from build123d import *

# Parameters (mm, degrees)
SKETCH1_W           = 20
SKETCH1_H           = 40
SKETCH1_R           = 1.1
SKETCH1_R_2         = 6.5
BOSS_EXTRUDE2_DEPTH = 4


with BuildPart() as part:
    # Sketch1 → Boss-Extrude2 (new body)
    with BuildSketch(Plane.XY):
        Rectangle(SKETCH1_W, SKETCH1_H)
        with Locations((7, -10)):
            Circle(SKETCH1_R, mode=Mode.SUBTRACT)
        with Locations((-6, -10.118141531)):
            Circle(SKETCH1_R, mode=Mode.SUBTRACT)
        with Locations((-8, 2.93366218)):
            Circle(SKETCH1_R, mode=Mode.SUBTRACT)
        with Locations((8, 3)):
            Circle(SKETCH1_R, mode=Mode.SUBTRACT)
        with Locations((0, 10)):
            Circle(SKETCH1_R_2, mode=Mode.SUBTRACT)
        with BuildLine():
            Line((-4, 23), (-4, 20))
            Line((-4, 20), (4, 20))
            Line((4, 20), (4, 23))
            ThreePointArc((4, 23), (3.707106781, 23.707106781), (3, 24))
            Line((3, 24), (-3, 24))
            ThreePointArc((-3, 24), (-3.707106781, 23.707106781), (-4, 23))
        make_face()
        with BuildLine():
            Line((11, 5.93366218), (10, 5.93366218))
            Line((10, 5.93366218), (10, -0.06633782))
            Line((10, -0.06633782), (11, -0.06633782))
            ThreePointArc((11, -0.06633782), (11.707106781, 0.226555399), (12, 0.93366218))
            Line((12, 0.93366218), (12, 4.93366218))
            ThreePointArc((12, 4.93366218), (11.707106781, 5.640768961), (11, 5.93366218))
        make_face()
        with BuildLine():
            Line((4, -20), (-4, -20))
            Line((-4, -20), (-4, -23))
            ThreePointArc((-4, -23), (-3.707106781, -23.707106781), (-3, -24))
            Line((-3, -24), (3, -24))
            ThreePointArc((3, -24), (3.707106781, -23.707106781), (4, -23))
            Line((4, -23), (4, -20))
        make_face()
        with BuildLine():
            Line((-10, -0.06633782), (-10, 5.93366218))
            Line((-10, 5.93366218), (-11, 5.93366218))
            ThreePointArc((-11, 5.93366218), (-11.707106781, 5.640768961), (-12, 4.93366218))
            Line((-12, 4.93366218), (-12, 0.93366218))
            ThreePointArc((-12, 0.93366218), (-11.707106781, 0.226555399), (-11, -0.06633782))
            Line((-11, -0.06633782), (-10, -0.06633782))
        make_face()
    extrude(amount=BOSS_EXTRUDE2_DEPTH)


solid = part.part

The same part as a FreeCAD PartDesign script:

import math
import FreeCAD as App
import Part
import Sketcher
from FreeCAD import Vector
Q = App.Units.Quantity

doc = App.newDocument("Part")
body = doc.addObject("PartDesign::Body", "Body")

sketch1 = doc.addObject("Sketcher::SketchObject", "Sketch")
body.addObject(sketch1)
sketch1.AttachmentSupport = (doc.XY_Plane, [""])
sketch1.MapMode = "FlatFace"
sketch1.addGeometry([
    Part.LineSegment(Vector(-10, -0.066338, 0), Vector(-10, -20, 0)),
    Part.LineSegment(Vector(-10, -20, 0), Vector(-4, -20, 0)),
    Part.LineSegment(Vector(-4, -20, 0), Vector(-4, -23, 0)),
    Part.ArcOfCircle(Part.Circle(Vector(-3, -23, 0), Vector(0, 0, 1), 1), math.radians(-180), math.radians(-90)),
    Part.LineSegment(Vector(-3, -24, 0), Vector(3, -24, 0)),
    Part.ArcOfCircle(Part.Circle(Vector(3, -23, 0), Vector(0, 0, 1), 1), math.radians(-90), math.radians(0)),
    Part.LineSegment(Vector(4, -23, 0), Vector(4, -20, 0)),
    Part.LineSegment(Vector(4, -20, 0), Vector(10, -20, 0)),
    Part.LineSegment(Vector(10, -20, 0), Vector(10, -0.066338, 0)),
    Part.LineSegment(Vector(10, -0.066338, 0), Vector(11, -0.066338, 0)),
    Part.ArcOfCircle(Part.Circle(Vector(11, 0.933662, 0), Vector(0, 0, 1), 1), math.radians(-90), math.radians(0)),
    Part.LineSegment(Vector(12, 0.933662, 0), Vector(12, 4.933662, 0)),
    Part.ArcOfCircle(Part.Circle(Vector(11, 4.933662, 0), Vector(0, 0, 1), 1), math.radians(0), math.radians(90)),
    Part.LineSegment(Vector(11, 5.933662, 0), Vector(10, 5.933662, 0)),
    Part.LineSegment(Vector(10, 5.933662, 0), Vector(10, 20, 0)),
    Part.LineSegment(Vector(10, 20, 0), Vector(4, 20, 0)),
    Part.LineSegment(Vector(4, 20, 0), Vector(4, 23, 0)),
    Part.ArcOfCircle(Part.Circle(Vector(3, 23, 0), Vector(0, 0, 1), 1), math.radians(0), math.radians(90)),
    Part.LineSegment(Vector(3, 24, 0), Vector(-3, 24, 0)),
    Part.ArcOfCircle(Part.Circle(Vector(-3, 23, 0), Vector(0, 0, 1), 1), math.radians(90), math.radians(180)),
    Part.LineSegment(Vector(-4, 23, 0), Vector(-4, 20, 0)),
    Part.LineSegment(Vector(-4, 20, 0), Vector(-10, 20, 0)),
    Part.LineSegment(Vector(-10, 20, 0), Vector(-10, 5.933662, 0)),
    Part.LineSegment(Vector(-10, 5.933662, 0), Vector(-11, 5.933662, 0)),
    Part.ArcOfCircle(Part.Circle(Vector(-11, 4.933662, 0), Vector(0, 0, 1), 1), math.radians(90), math.radians(180)),
    Part.LineSegment(Vector(-12, 4.933662, 0), Vector(-12, 0.933662, 0)),
    Part.ArcOfCircle(Part.Circle(Vector(-11, 0.933662, 0), Vector(0, 0, 1), 1), math.radians(-180), math.radians(-90)),
    Part.LineSegment(Vector(-11, -0.066338, 0), Vector(-10, -0.066338, 0)),
    Part.Circle(Vector(-6, -10.118142, 0), Vector(0, 0, 1), 1.1),
    Part.Circle(Vector(7, -10, 0), Vector(0, 0, 1), 1.1),
    Part.Circle(Vector(-8, 2.933662, 0), Vector(0, 0, 1), 1.1),
    Part.Circle(Vector(0, 10, 0), Vector(0, 0, 1), 6.5),
    Part.Circle(Vector(8, 3, 0), Vector(0, 0, 1), 1.1),
], False)
sketch1.addConstraint([
    Sketcher.Constraint("Coincident", 0, 2, 1, 1),
    Sketcher.Constraint("Coincident", 1, 2, 2, 1),
    Sketcher.Constraint("Tangent", 2, 2, 3, 1),
    Sketcher.Constraint("Tangent", 3, 2, 4, 1),
    Sketcher.Constraint("Tangent", 4, 2, 5, 1),
    Sketcher.Constraint("Tangent", 5, 2, 6, 1),
    Sketcher.Constraint("Coincident", 6, 2, 7, 1),
    Sketcher.Constraint("Coincident", 7, 2, 8, 1),
    Sketcher.Constraint("Coincident", 8, 2, 9, 1),
    Sketcher.Constraint("Tangent", 9, 2, 10, 1),
    Sketcher.Constraint("Tangent", 10, 2, 11, 1),
    Sketcher.Constraint("Tangent", 11, 2, 12, 1),
    Sketcher.Constraint("Tangent", 12, 2, 13, 1),
    Sketcher.Constraint("Coincident", 13, 2, 14, 1),
    Sketcher.Constraint("Coincident", 14, 2, 15, 1),
    Sketcher.Constraint("Coincident", 15, 2, 16, 1),
    Sketcher.Constraint("Tangent", 16, 2, 17, 1),
    Sketcher.Constraint("Tangent", 17, 2, 18, 1),
    Sketcher.Constraint("Tangent", 18, 2, 19, 1),
    Sketcher.Constraint("Tangent", 19, 2, 20, 1),
    Sketcher.Constraint("Coincident", 20, 2, 21, 1),
    Sketcher.Constraint("Coincident", 21, 2, 22, 1),
    Sketcher.Constraint("Coincident", 22, 2, 23, 1),
    Sketcher.Constraint("Tangent", 23, 2, 24, 1),
    Sketcher.Constraint("Tangent", 24, 2, 25, 1),
    Sketcher.Constraint("Tangent", 25, 2, 26, 1),
    Sketcher.Constraint("Tangent", 26, 2, 27, 1),
    Sketcher.Constraint("Coincident", 27, 2, 0, 1),
    Sketcher.Constraint("Vertical", 0),
    Sketcher.Constraint("Horizontal", 1),
    Sketcher.Constraint("Vertical", 2),
    Sketcher.Constraint("Horizontal", 4),
    Sketcher.Constraint("Vertical", 6),
    Sketcher.Constraint("Horizontal", 7),
    Sketcher.Constraint("Vertical", 8),
    Sketcher.Constraint("Horizontal", 9),
    Sketcher.Constraint("Vertical", 11),
    Sketcher.Constraint("Horizontal", 13),
    Sketcher.Constraint("Vertical", 14),
    Sketcher.Constraint("Horizontal", 15),
    Sketcher.Constraint("Vertical", 16),
    Sketcher.Constraint("Horizontal", 18),
    Sketcher.Constraint("Vertical", 20),
    Sketcher.Constraint("Horizontal", 21),
    Sketcher.Constraint("Vertical", 22),
    Sketcher.Constraint("Horizontal", 23),
    Sketcher.Constraint("Vertical", 25),
    Sketcher.Constraint("Horizontal", 27),
    Sketcher.Constraint("Equal", 3, 5),
    Sketcher.Constraint("Equal", 5, 10),
    Sketcher.Constraint("Equal", 10, 12),
    Sketcher.Constraint("Equal", 12, 17),
    Sketcher.Constraint("Equal", 17, 19),
    Sketcher.Constraint("Equal", 19, 24),
    Sketcher.Constraint("Equal", 24, 26),
    Sketcher.Constraint("Equal", 28, 29),
    Sketcher.Constraint("Equal", 29, 30),
    Sketcher.Constraint("Equal", 30, 32),
    Sketcher.Constraint("Symmetric", 3, 3, 17, 3, -1, 1),
    Sketcher.Constraint("Symmetric", 0, 2, 14, 2, -1, 1),
    Sketcher.Constraint("Symmetric", 6, 2, 20, 2, -1, 1),
    Sketcher.Constraint("Symmetric", 12, 3, 24, 3, -2),
    Sketcher.Constraint("Symmetric", 1, 2, 6, 2, -2),
    Sketcher.Constraint("Symmetric", 8, 2, 27, 2, -2),
    Sketcher.Constraint("PointOnObject", 31, 3, -2),
    Sketcher.Constraint("Vertical", 0, 2, 21, 2),
    Sketcher.Constraint("Equal", 1, 4),
    Sketcher.Constraint("Diameter", 31, Q("13 mm")),
    Sketcher.Constraint("Radius", 3, Q("1 mm")),
    Sketcher.Constraint("Diameter", 28, Q("2.2 mm")),
    Sketcher.Constraint("DistanceX", 1, 1, 1, 2, Q("6 mm")),
    Sketcher.Constraint("DistanceX", 9, 1, 9, 2, Q("1 mm")),
    Sketcher.Constraint("DistanceY", 2, 2, 2, 1, Q("3 mm")),
    Sketcher.Constraint("DistanceY", 11, 1, 11, 2, Q("4 mm")),
    Sketcher.Constraint("DistanceY", 3, 3, -1, 1, Q("23 mm")),
    Sketcher.Constraint("DistanceX", 28, 3, -1, 1, Q("6 mm")),
    Sketcher.Constraint("DistanceX", -1, 1, 29, 3, Q("7 mm")),
    Sketcher.Constraint("DistanceY", 29, 3, -1, 1, Q("10 mm")),
    Sketcher.Constraint("DistanceX", 30, 3, -1, 1, Q("8 mm")),
    Sketcher.Constraint("DistanceY", -1, 1, 31, 3, Q("10 mm")),
    Sketcher.Constraint("DistanceX", -1, 1, 32, 3, Q("8 mm")),
    Sketcher.Constraint("DistanceY", -1, 1, 32, 3, Q("3 mm")),
    Sketcher.Constraint("DistanceY", 30, 3, 24, 3, Q("2 mm")),
    Sketcher.Constraint("DistanceY", 0, 2, 0, 1, Q("19.933662 mm")),
    Sketcher.Constraint("DistanceY", 28, 3, -1, 1, Q("10.118142 mm")),
])
pad1 = doc.addObject("PartDesign::Pad", "Pad")
body.addObject(pad1)
pad1.Profile = sketch1
pad1.Length = 4

doc.recompute()
